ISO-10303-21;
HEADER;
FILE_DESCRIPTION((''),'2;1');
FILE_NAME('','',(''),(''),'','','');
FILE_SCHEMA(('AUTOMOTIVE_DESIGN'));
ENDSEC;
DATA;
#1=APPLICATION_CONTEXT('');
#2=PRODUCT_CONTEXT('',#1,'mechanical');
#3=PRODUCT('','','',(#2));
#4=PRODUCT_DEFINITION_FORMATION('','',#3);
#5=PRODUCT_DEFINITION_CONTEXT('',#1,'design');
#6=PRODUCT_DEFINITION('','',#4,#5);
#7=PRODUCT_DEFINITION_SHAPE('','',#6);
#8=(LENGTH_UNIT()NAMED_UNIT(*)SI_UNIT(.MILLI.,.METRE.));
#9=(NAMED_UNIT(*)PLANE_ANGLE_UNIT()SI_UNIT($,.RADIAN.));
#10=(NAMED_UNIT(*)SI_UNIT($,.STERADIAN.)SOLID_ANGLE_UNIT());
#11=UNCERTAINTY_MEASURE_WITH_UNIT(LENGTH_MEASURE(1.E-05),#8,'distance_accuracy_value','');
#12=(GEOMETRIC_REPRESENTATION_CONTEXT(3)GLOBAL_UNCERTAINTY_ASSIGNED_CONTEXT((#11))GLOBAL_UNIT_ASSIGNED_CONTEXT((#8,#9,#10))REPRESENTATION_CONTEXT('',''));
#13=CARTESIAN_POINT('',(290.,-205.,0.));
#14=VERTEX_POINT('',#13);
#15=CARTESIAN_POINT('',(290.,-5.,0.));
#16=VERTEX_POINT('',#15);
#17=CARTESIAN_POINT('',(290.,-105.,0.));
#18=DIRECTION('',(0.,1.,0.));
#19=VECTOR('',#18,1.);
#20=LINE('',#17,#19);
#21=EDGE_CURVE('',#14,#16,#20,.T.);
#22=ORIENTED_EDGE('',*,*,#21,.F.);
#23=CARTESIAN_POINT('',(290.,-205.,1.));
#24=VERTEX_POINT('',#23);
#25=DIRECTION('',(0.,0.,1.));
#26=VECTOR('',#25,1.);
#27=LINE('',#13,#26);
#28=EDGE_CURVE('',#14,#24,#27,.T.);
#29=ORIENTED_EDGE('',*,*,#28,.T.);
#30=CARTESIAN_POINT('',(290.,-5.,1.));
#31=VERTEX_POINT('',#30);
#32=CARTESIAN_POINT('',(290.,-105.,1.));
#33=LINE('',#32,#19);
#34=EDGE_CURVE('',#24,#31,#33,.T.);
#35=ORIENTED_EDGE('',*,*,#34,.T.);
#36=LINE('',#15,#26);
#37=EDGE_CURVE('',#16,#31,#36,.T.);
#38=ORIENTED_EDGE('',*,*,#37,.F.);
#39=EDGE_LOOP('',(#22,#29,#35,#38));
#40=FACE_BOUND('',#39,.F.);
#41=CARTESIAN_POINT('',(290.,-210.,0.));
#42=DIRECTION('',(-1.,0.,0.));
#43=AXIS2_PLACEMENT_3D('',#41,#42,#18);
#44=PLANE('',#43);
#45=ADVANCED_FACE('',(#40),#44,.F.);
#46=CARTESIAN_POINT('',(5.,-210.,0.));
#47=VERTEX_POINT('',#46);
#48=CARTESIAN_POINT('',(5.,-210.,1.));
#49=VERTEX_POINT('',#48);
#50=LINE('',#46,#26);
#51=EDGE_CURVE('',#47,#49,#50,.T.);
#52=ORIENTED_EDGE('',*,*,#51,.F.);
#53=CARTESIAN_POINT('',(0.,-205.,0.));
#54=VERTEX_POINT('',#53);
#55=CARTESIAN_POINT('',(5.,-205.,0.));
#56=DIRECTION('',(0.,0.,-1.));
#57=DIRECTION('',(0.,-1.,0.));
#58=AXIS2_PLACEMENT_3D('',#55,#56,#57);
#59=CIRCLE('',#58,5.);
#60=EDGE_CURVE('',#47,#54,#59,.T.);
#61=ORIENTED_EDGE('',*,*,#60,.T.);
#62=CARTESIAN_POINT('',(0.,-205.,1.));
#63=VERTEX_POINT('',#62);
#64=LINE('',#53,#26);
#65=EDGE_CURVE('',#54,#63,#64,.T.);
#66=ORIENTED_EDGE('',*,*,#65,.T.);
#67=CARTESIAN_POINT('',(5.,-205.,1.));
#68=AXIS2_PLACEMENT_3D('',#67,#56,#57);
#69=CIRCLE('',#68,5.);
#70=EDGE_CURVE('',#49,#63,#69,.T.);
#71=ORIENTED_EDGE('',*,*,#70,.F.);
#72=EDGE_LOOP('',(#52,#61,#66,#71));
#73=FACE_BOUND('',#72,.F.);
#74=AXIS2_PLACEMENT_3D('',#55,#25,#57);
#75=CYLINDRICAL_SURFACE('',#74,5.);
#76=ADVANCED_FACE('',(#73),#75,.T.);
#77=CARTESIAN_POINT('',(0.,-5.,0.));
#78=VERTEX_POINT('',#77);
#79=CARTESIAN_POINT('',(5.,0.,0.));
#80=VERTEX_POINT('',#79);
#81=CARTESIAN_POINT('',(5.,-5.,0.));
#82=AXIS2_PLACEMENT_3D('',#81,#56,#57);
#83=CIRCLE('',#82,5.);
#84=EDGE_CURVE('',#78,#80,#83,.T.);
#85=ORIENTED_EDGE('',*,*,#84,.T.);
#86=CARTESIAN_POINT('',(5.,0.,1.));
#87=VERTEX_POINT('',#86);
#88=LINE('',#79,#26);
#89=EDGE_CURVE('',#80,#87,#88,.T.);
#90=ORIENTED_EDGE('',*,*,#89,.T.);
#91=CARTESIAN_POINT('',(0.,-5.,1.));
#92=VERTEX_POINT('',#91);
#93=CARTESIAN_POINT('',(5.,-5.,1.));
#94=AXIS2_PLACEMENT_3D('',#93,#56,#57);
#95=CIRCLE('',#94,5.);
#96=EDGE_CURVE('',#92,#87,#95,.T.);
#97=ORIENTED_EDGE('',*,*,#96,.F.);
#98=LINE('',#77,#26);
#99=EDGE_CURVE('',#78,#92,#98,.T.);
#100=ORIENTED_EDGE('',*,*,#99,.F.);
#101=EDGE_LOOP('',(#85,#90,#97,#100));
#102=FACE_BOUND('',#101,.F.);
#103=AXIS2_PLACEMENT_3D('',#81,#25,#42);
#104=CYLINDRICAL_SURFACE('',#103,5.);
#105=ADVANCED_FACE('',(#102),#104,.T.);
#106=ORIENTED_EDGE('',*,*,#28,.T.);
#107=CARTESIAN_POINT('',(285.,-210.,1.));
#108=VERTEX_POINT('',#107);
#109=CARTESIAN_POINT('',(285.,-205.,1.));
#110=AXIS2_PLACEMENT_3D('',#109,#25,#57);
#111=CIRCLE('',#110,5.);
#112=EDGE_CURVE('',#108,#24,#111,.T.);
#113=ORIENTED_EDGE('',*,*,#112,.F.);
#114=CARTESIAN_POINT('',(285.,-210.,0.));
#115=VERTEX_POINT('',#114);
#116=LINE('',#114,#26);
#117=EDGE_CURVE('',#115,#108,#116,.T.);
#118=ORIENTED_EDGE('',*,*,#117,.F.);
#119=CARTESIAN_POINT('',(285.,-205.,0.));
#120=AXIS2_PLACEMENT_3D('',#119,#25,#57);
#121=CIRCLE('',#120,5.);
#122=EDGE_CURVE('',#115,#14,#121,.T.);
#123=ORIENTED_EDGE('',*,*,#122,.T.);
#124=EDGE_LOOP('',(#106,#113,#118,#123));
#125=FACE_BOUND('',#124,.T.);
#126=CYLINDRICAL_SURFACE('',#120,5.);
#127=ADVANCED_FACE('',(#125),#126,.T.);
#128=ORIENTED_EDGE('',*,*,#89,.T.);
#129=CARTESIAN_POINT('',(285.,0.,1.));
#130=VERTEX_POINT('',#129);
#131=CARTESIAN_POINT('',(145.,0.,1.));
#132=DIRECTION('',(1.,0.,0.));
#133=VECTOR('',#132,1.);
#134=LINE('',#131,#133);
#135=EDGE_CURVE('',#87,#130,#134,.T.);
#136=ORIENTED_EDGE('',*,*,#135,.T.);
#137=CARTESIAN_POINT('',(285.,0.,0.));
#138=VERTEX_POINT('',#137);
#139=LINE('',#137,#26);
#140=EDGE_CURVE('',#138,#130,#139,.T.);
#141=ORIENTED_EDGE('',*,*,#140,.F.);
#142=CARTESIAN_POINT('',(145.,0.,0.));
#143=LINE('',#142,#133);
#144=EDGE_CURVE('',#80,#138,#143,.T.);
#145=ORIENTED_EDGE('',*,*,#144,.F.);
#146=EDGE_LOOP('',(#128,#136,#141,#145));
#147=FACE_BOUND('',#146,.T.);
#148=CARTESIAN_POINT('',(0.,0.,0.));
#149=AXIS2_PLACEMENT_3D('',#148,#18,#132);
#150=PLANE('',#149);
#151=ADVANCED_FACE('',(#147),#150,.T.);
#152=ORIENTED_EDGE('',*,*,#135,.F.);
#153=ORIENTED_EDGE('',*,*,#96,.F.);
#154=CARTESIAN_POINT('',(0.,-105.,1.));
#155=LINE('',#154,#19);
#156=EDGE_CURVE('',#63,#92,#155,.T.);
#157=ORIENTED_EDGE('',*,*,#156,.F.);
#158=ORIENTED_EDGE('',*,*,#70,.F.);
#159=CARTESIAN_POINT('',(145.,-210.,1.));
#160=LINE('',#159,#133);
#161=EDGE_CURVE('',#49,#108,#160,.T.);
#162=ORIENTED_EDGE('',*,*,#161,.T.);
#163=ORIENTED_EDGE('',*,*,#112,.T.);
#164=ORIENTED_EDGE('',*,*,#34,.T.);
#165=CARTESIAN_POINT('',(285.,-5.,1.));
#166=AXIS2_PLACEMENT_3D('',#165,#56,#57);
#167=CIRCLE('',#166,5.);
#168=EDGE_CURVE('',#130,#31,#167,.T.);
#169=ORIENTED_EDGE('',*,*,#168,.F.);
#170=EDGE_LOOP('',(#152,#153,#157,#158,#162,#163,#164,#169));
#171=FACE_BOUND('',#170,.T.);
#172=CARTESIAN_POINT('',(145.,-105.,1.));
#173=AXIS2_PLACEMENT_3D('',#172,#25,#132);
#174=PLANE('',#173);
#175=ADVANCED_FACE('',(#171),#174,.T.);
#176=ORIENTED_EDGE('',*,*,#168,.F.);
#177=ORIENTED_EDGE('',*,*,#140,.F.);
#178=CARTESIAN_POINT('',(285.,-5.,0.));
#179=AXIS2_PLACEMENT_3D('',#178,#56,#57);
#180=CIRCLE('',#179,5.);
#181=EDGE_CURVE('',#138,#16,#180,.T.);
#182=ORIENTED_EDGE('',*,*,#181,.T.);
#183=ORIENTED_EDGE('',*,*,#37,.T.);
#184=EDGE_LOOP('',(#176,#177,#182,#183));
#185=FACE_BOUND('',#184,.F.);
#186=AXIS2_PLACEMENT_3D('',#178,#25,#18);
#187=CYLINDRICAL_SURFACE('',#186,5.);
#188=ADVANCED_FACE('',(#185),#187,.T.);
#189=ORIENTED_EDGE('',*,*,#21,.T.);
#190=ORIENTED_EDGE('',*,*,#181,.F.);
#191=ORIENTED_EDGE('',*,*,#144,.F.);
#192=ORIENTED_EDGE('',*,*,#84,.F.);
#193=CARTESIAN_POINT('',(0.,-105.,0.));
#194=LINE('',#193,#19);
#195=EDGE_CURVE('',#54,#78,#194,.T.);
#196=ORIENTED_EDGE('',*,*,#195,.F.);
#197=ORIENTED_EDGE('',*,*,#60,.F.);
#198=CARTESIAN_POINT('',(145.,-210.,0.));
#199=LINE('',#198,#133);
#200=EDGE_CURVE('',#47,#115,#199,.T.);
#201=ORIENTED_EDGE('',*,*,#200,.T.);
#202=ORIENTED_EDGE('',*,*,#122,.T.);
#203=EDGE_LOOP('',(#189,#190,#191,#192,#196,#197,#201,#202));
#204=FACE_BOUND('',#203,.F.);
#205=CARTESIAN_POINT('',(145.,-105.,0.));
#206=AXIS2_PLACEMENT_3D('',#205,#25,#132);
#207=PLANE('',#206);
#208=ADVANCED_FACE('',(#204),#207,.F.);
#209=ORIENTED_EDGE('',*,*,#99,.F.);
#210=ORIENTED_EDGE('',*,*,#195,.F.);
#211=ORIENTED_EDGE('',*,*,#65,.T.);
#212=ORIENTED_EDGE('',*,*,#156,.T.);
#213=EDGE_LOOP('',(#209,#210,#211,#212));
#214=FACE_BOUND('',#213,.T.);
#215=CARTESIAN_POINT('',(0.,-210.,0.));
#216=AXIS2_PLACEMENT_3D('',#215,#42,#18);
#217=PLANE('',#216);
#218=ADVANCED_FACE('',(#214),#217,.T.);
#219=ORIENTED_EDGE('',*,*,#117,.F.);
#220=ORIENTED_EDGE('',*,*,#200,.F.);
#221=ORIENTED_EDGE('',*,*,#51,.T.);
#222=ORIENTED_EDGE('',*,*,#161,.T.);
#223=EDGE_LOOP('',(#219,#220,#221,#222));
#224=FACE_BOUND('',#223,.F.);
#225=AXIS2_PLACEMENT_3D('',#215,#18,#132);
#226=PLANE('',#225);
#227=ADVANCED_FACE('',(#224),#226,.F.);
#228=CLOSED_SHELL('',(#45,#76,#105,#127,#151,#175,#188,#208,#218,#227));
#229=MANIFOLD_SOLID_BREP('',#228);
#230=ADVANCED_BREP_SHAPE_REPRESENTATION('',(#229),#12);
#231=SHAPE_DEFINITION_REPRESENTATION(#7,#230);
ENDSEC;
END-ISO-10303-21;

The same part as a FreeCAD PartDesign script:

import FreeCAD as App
import Part
import Sketcher


def edges_at(feature, points):
    """Names of the edges that pass closest to the given points."""
    edges = feature.Shape.Edges
    near = lambda p: min(range(len(edges)), key=lambda i: edges[i].distToShape(Part.Vertex(*p))[0])
    return sorted({f"Edge{near(p) + 1}" for p in points})


def add_polygon(sketch, points):
    """Adds a closed chain of lines whose ends are joined by coincident constraints."""
    first, n = sketch.GeometryCount, len(points)
    for a, b in zip(points, points[1:] + points[:1]):
        sketch.addGeometry(Part.LineSegment(App.Vector(*a, 0), App.Vector(*b, 0)), False)
    for i in range(n):
        sketch.addConstraint(Sketcher.Constraint("Coincident", first + i, 2, first + (i + 1) % n, 1))

doc = App.newDocument("Part")
params = doc.addObject("Spreadsheet::Sheet", "Params")
for row, (alias, value) in enumerate([
    ("sketch1_width", "290 mm"),
    ("sketch1_height", "210 mm"),
    ("pad1_length", "1 mm"),
    ("fillet_radius", "5 mm"),
    ("fillet2_radius", "5 mm"),
    ("fillet3_radius", "5 mm"),
    ("fillet4_radius", "5 mm"),
], start=1):
    params.set(f"A{row}", alias)
    params.set(f"B{row}", "=" + value)
    params.setAlias(f"B{row}", alias)

body = doc.addObject("PartDesign::Body", "Body")

sketch1 = doc.addObject("Sketcher::SketchObject", "Sketch")
body.addObject(sketch1)
sketch1.AttachmentSupport = (doc.XY_Plane, [""])
sketch1.MapMode = "FlatFace"
add_polygon(sketch1, [(0, 0), (0, -210), (290, -210), (290, 0)])
sketch1.addConstraint([
    Sketcher.Constraint("Vertical", 0),
    Sketcher.Constraint("Horizontal", 1),
    Sketcher.Constraint("Vertical", 2),
    Sketcher.Constraint("Horizontal", 3),
    Sketcher.Constraint("Coincident", 3, 2, -1, 1),
    Sketcher.Constraint("DistanceX", 1, 1, 1, 2, 290.0),
    Sketcher.Constraint("DistanceY", 0, 2, 0, 1, 210.0),
])
sketch1.setExpression("Constraints[9]", "Params.sketch1_width")
sketch1.setExpression("Constraints[10]", "Params.sketch1_height")
pad1 = doc.addObject("PartDesign::Pad", "Pad")
body.addObject(pad1)
pad1.Profile = sketch1
pad1.setExpression("Length", "Params.pad1_length")
doc.recompute()

fillet = doc.addObject("PartDesign::Fillet", "Fillet")
body.addObject(fillet)
fillet.Base = (pad1, edges_at(pad1, [(290, -210, 0.5)]))
fillet.setExpression("Radius", "Params.fillet_radius")
doc.recompute()

fillet2 = doc.addObject("PartDesign::Fillet", "Fillet001")
body.addObject(fillet2)
fillet2.Base = (fillet, edges_at(fillet, [(0, -210, 0.5)]))
fillet2.setExpression("Radius", "Params.fillet2_radius")
doc.recompute()

fillet3 = doc.addObject("PartDesign::Fillet", "Fillet002")
body.addObject(fillet3)
fillet3.Base = (fillet2, edges_at(fillet2, [(0, 0, 0.5)]))
fillet3.setExpression("Radius", "Params.fillet3_radius")
doc.recompute()

fillet4 = doc.addObject("PartDesign::Fillet", "Fillet003")
body.addObject(fillet4)
fillet4.Base = (fillet3, edges_at(fillet3, [(290, 0, 0.5)]))
fillet4.setExpression("Radius", "Params.fillet4_radius")

doc.recompute()
